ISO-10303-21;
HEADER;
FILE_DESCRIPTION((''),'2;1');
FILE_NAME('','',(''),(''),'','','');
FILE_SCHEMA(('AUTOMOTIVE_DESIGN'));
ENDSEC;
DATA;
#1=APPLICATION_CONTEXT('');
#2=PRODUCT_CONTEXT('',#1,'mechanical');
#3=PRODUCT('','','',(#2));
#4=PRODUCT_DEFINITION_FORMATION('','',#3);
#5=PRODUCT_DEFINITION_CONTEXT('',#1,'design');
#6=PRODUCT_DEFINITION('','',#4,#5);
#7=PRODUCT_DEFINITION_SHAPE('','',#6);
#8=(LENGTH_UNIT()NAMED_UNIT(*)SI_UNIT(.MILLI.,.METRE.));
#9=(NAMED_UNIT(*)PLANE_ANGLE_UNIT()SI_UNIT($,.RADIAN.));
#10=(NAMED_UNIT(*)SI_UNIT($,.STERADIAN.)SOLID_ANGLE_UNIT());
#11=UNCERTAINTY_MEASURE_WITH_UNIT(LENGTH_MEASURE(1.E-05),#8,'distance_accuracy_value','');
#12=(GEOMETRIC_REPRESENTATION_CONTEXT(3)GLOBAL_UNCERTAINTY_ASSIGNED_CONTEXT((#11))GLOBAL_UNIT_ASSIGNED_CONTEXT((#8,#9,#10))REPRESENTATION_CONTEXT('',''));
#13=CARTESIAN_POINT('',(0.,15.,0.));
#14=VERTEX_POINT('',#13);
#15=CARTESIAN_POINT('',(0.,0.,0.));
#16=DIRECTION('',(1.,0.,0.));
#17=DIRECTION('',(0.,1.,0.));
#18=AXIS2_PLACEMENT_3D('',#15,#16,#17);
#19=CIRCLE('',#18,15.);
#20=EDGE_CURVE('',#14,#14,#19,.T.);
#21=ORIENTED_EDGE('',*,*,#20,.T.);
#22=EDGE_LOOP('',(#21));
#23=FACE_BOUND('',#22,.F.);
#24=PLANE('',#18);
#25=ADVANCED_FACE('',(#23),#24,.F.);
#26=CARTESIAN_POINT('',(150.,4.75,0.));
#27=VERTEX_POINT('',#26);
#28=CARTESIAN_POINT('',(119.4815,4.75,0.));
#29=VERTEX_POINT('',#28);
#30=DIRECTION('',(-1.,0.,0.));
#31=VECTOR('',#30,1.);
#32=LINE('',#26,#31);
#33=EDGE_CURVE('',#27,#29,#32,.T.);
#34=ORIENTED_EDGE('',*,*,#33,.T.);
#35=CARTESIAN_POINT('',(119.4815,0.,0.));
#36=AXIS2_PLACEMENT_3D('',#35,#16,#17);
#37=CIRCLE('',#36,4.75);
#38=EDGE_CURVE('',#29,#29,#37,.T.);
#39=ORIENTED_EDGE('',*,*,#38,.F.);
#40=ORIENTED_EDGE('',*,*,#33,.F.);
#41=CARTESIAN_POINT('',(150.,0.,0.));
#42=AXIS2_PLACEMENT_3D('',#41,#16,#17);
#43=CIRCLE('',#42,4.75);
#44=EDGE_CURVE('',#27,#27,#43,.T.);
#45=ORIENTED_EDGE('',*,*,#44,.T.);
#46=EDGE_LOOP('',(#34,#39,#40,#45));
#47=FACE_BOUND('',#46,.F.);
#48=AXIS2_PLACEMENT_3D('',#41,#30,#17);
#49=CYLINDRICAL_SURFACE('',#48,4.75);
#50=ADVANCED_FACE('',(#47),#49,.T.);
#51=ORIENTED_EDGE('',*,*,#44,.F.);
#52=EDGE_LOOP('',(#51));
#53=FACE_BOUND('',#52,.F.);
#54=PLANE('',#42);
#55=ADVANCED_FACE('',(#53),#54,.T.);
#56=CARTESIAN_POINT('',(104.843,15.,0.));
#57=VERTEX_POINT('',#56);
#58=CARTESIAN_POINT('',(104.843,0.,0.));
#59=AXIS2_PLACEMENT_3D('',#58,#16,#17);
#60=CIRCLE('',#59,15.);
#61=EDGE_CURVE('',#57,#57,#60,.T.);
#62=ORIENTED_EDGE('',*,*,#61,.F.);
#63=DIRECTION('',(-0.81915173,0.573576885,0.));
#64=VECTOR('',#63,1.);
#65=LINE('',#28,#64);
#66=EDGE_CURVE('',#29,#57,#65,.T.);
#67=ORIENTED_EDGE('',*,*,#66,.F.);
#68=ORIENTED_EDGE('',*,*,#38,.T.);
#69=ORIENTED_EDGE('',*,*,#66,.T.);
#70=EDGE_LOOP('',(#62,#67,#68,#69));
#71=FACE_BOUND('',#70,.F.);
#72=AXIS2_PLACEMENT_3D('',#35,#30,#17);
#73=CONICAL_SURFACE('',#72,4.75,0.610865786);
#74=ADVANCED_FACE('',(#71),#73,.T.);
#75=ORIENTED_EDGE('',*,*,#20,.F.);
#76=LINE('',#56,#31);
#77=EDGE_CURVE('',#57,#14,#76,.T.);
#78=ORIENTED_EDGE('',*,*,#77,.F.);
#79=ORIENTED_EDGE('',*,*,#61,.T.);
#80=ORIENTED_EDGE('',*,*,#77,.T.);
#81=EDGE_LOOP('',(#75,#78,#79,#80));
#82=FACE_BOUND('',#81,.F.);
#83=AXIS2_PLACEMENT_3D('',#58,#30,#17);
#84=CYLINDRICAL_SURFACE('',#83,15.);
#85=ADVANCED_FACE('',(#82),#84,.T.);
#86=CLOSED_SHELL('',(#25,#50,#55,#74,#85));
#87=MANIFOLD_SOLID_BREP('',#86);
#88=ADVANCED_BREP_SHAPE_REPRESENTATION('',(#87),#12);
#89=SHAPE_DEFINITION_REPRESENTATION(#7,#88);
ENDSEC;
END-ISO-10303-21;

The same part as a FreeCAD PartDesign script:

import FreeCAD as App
import Part
import Sketcher

V = App.Vector
Q = App.Units.Quantity

doc = App.newDocument("Part")
body = doc.addObject("PartDesign::Body", "Body")

# Sketch on XY plane
sketch1 = doc.addObject("Sketcher::SketchObject", "Sketch")
body.addObject(sketch1)
sketch1.AttachmentSupport = (doc.XY_Plane, [""])
sketch1.MapMode = "FlatFace"
sketch1.addGeometry([
    Part.LineSegment(V(0, 15, 0), V(0, 0, 0)),  # 0
    Part.LineSegment(V(0, 0, 0), V(150, 0, 0)),  # 1
    Part.LineSegment(V(150, 0, 0), V(150, 4.75, 0)),  # 2
    Part.LineSegment(V(150, 4.75, 0), V(119.4815, 4.75, 0)),  # 3
    Part.LineSegment(V(119.4815, 4.75, 0), V(104.843, 15, 0)),  # 4
    Part.LineSegment(V(104.843, 15, 0), V(0, 15, 0)),  # 5
], False)
sketch1.addConstraint([
    Sketcher.Constraint("Coincident", 0, 2, 1, 1),
    Sketcher.Constraint("Coincident", 1, 2, 2, 1),
    Sketcher.Constraint("Coincident", 2, 2, 3, 1),
    Sketcher.Constraint("Coincident", 3, 2, 4, 1),
    Sketcher.Constraint("Coincident", 4, 2, 5, 1),
    Sketcher.Constraint("Coincident", 5, 2, 0, 1),
    Sketcher.Constraint("Vertical", 0),
    Sketcher.Constraint("Horizontal", 1),
    Sketcher.Constraint("Vertical", 2),
    Sketcher.Constraint("Horizontal", 3),
    Sketcher.Constraint("Horizontal", 5),
    Sketcher.Constraint("Coincident", 0, 2, -1, 1),
    Sketcher.Constraint("DistanceX", 1, 1, 1, 2, Q("150 mm")),
    Sketcher.Constraint("DistanceY", 0, 2, 0, 1, Q("15 mm")),
    Sketcher.Constraint("DistanceY", 2, 1, 2, 2, Q("4.75 mm")),
    Sketcher.Constraint("Angle", 4, Q("145 deg")),
    Sketcher.Constraint("DistanceX", 4, 2, 2, 2, Q("45.157 mm")),
])
revolution = doc.addObject("PartDesign::Revolution", "Revolution")
body.addObject(revolution)
revolution.Profile = sketch1
revolution.ReferenceAxis = (sketch1, ["H_Axis"])
revolution.Angle = 360

doc.recompute()
